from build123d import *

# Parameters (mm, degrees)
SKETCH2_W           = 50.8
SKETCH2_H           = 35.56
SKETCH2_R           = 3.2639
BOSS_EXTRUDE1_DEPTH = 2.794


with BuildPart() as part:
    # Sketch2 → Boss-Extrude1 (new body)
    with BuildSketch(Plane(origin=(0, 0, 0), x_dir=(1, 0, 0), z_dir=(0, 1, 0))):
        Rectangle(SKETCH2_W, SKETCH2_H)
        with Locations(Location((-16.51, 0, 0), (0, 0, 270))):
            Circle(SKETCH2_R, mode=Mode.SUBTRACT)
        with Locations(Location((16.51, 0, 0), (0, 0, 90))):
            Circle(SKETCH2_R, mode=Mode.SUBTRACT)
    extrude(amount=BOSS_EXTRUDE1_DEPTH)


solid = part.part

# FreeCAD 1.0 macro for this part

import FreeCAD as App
import Part
import Sketcher
from FreeCAD import Vector
Q = App.Units.Quantity

doc = App.newDocument("Part")
body = doc.addObject("PartDesign::Body", "Body")

# Sketch on XZ plane
sketch1 = body.newObject("Sketcher::SketchObject", "Sketch")
sketch1.AttachmentSupport = (doc.getObject("XZ_Plane"), [""])
sketch1.MapMode = "FlatFace"
sketch1.addGeometry([
    Part.LineSegment(Vector(-25.4, -17.8, 0), Vector(-25.4, 17.8, 0)),  # 0
    Part.LineSegment(Vector(-25.4, 17.8, 0), Vector(25.4, 17.8, 0)),  # 1
    Part.LineSegment(Vector(25.4, 17.8, 0), Vector(25.4, -17.8, 0)),  # 2
    Part.LineSegment(Vector(25.4, -17.8, 0), Vector(-25.4, -17.8, 0)),  # 3
    Part.Circle(Vector(-16.5, 0, 0), Vector(0, 0, 1), 3.3),  # 4
    Part.Circle(Vector(16.5, 0, 0), Vector(0, 0, 1), 3.3),  # 5
], False)
sketch1.addConstraint([
    Sketcher.Constraint("Coincident", 0, 2, 1, 1),
    Sketcher.Constraint("Coincident", 1, 2, 2, 1),
    Sketcher.Constraint("Coincident", 2, 2, 3, 1),
    Sketcher.Constraint("Coincident", 3, 2, 0, 1),
    Sketcher.Constraint("Vertical", 0),
    Sketcher.Constraint("Horizontal", 1),
    Sketcher.Constraint("Vertical", 2),
    Sketcher.Constraint("Horizontal", 3),
    Sketcher.Constraint("Equal", 4, 5),
    Sketcher.Constraint("Symmetric", 4, 3, 5, 3, -1, 1),
    Sketcher.Constraint("Symmetric", 0, 2, 2, 2, -1, 1),
    Sketcher.Constraint("PointOnObject", 4, 3, -1),
    Sketcher.Constraint("DistanceX", 1, 1, 1, 2, Q("2 in")),
    Sketcher.Constraint("Diameter", 4, Q("0.257 in")),
    Sketcher.Constraint("DistanceY", 0, 1, 0, 2, Q("1.4 in")),
    Sketcher.Constraint("DistanceX", 4, 3, 5, 3, Q("1.3 in")),
])
pad1 = body.newObject("PartDesign::Pad", "Pad")
pad1.Profile = sketch1
pad1.Length = Q("0.11 in")
pad1.Reversed = True

doc.recompute()
